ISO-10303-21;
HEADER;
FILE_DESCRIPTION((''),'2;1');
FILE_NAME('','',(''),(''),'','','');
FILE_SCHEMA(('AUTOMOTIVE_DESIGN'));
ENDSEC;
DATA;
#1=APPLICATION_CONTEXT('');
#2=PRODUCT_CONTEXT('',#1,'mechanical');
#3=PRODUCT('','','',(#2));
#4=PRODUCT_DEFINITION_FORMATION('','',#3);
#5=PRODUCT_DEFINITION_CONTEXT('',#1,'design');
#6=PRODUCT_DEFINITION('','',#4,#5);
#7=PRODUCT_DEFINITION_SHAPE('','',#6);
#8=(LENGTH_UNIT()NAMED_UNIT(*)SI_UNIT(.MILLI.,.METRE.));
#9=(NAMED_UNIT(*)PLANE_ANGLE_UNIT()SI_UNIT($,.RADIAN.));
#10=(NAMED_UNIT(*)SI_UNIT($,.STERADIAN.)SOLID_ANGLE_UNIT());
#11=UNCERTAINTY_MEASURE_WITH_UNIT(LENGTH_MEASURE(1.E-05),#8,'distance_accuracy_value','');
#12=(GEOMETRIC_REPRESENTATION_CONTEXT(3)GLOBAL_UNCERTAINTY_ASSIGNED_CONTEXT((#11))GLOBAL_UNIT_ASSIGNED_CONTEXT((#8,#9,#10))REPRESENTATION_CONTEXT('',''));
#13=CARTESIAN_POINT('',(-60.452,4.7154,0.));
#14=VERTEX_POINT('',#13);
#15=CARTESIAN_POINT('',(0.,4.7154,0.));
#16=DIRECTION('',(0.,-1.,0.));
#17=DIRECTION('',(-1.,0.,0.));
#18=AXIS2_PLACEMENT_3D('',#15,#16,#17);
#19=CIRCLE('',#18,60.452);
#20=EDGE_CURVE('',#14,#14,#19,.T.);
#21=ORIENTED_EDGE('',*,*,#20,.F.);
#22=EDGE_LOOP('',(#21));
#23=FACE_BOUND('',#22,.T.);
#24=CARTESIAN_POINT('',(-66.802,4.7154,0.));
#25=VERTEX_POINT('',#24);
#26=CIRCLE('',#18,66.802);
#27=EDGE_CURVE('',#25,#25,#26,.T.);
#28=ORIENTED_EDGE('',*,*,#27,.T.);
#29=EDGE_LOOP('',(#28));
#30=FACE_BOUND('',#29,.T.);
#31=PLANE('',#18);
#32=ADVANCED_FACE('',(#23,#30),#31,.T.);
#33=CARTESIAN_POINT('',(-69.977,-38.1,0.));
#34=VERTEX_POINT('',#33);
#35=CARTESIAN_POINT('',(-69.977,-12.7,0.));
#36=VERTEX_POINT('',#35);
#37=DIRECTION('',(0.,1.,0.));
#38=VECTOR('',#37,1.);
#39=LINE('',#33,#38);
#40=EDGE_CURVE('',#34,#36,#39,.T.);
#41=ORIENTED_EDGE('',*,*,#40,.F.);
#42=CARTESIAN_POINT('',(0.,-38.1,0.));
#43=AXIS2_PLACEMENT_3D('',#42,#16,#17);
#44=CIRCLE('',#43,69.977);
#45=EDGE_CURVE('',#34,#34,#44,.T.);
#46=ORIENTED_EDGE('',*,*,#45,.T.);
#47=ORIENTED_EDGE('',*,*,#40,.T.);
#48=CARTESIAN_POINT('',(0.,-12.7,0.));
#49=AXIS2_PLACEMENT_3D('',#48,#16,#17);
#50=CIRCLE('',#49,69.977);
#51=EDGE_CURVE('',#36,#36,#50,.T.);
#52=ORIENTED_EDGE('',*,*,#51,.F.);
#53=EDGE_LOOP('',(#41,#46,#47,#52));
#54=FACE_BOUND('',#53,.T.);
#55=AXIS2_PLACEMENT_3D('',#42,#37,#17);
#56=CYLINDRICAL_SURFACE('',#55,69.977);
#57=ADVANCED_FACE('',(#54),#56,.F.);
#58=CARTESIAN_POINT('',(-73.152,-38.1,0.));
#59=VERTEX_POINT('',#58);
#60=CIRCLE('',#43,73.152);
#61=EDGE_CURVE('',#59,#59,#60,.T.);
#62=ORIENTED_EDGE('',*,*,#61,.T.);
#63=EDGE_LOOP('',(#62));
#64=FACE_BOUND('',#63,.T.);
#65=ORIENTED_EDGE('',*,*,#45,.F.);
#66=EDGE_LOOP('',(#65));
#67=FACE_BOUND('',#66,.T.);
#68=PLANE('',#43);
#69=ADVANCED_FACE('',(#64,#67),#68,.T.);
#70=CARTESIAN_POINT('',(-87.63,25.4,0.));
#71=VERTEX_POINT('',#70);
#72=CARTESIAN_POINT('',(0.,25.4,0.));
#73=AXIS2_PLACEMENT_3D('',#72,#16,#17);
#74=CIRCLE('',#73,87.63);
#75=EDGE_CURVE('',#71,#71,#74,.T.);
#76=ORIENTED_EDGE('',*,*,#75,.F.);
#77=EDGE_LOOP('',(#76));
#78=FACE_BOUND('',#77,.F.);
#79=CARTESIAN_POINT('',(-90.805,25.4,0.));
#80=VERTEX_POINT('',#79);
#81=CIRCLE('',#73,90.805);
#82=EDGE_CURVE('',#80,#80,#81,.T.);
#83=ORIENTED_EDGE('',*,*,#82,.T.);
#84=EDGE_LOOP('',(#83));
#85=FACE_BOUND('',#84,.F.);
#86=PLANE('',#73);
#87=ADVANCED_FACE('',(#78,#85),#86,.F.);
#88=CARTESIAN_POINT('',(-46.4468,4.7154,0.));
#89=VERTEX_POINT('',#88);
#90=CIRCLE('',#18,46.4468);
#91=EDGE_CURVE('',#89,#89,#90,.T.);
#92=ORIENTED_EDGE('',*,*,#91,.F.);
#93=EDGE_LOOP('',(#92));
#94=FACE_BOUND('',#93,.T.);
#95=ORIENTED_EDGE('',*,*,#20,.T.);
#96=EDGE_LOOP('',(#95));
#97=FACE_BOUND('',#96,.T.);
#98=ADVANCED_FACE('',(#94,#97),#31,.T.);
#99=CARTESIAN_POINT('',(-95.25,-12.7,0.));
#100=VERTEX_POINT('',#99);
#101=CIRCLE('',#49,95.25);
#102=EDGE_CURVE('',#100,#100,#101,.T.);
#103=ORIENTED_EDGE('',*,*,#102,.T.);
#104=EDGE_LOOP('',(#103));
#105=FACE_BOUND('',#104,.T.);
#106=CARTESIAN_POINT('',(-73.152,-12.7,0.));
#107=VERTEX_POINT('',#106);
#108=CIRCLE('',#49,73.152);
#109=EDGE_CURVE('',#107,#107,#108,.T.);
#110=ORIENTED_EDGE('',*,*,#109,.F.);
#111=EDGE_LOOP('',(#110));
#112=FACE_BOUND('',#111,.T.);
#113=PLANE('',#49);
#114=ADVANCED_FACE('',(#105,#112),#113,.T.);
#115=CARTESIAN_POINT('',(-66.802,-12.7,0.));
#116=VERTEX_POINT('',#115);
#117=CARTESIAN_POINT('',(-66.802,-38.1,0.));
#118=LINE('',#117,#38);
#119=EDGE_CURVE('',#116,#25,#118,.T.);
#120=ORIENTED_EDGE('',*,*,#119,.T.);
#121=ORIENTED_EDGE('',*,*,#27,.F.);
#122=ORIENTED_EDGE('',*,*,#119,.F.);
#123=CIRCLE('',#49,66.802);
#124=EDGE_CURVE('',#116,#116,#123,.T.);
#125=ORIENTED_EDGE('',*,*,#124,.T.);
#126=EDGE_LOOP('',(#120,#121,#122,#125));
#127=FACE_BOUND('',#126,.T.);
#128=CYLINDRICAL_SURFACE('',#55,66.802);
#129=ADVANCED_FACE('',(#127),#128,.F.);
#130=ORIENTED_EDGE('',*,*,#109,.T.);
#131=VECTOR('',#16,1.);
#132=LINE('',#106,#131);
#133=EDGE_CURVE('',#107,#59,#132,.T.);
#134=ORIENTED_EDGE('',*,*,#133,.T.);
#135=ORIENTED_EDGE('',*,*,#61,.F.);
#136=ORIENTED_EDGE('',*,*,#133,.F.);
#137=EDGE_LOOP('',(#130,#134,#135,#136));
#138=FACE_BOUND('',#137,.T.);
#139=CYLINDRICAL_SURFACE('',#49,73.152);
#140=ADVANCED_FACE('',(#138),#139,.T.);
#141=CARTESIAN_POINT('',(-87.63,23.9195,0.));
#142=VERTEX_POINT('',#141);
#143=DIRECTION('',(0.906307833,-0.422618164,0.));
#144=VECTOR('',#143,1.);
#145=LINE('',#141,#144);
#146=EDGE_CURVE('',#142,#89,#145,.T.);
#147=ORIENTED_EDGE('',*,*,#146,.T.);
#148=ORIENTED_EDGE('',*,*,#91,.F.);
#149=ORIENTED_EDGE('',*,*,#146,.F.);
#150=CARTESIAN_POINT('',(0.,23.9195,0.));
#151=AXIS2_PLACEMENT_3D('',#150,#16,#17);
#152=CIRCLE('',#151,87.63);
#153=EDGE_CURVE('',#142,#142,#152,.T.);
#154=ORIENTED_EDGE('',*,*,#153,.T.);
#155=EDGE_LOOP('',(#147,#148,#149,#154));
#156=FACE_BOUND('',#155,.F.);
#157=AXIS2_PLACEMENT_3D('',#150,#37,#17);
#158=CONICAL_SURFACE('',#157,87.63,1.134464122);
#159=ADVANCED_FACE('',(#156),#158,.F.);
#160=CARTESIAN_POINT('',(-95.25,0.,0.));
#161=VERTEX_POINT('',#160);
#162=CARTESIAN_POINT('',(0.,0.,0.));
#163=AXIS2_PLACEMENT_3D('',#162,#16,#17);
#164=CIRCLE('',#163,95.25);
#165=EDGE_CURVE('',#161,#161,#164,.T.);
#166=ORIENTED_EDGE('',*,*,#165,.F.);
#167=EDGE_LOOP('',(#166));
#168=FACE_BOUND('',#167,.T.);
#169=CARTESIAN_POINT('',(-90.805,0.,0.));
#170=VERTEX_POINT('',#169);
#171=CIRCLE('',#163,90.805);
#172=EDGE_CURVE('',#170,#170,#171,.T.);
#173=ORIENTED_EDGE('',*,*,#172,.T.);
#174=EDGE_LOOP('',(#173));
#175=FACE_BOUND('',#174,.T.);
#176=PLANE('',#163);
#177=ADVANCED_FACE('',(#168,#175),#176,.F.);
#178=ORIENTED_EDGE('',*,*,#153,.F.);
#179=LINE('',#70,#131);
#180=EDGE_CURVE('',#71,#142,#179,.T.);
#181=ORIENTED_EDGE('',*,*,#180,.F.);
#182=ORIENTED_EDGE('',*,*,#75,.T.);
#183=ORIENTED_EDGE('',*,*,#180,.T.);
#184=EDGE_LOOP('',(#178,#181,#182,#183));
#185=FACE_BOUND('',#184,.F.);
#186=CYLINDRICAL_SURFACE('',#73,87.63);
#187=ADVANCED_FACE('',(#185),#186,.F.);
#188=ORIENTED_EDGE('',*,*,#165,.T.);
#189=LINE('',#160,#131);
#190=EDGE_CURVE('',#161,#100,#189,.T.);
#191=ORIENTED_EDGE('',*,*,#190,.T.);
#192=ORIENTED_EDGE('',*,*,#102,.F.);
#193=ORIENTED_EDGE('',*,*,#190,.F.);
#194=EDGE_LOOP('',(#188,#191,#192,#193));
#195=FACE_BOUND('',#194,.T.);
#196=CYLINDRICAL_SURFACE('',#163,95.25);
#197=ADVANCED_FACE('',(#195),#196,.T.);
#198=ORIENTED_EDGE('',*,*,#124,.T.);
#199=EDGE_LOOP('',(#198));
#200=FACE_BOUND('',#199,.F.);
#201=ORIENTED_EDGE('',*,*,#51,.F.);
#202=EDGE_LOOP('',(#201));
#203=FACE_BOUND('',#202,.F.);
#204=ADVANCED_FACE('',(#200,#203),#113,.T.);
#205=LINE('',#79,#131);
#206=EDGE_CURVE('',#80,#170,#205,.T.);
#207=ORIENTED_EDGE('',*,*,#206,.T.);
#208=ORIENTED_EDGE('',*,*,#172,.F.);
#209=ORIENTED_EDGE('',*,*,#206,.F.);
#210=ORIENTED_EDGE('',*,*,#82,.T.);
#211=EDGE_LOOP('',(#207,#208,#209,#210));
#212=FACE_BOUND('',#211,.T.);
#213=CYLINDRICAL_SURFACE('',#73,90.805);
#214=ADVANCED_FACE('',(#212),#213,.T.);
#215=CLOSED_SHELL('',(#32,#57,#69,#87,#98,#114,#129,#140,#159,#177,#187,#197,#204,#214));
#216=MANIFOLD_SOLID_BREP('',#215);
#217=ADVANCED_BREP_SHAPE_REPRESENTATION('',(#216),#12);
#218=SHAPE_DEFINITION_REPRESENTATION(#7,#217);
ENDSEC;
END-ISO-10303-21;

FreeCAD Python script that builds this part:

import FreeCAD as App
import Part
import Sketcher
from FreeCAD import Vector
Q = App.Units.Quantity


def add_polygon(sketch, points):
    """Adds a closed chain of lines whose ends are joined by coincident constraints."""
    first, n = sketch.GeometryCount, len(points)
    for a, b in zip(points, points[1:] + points[:1]):
        sketch.addGeometry(Part.LineSegment(App.Vector(*a, 0), App.Vector(*b, 0)), False)
    for i in range(n):
        sketch.addConstraint(Sketcher.Constraint("Coincident", first + i, 2, first + (i + 1) % n, 1))

doc = App.newDocument("Part")
body = doc.addObject("PartDesign::Body", "Body")

sketch1 = body.newObject("Sketcher::SketchObject", "Sketch")
sketch1.AttachmentSupport = (doc.getObject("XY_Plane"), [""])
sketch1.MapMode = "FlatFace"
add_polygon(sketch1, [(-90.8, 25.4), (-90.8, 0), (-95.2, 0), (-95.2, -12.7), (-73.2, -12.7), (-73.2, -38.1), (-70, -38.1), (-70, -12.7), (-66.8, -12.7), (-66.8, 4.7), (-46.4, 4.7), (-87.6, 23.9), (-87.6, 25.4)])
sketch1.addConstraint(Sketcher.Constraint("Vertical", 0))
sketch1.addConstraint(Sketcher.Constraint("Horizontal", 1))
sketch1.addConstraint(Sketcher.Constraint("Vertical", 2))
sketch1.addConstraint(Sketcher.Constraint("Horizontal", 3))
sketch1.addConstraint(Sketcher.Constraint("Vertical", 4))
sketch1.addConstraint(Sketcher.Constraint("Horizontal", 5))
sketch1.addConstraint(Sketcher.Constraint("Vertical", 6))
sketch1.addConstraint(Sketcher.Constraint("Horizontal", 7))
sketch1.addConstraint(Sketcher.Constraint("Vertical", 8))
sketch1.addConstraint(Sketcher.Constraint("Horizontal", 9))
sketch1.addConstraint(Sketcher.Constraint("Vertical", 11))
sketch1.addConstraint(Sketcher.Constraint("Horizontal", 12))
sketch1.addConstraint(Sketcher.Constraint("PointOnObject", 0, 2, -1))
sketch1.addConstraint(Sketcher.Constraint("Horizontal", 3, 2, 6, 2))
sketch1.addConstraint(Sketcher.Constraint("Equal", 5, 7))
sketch1.addConstraint(Sketcher.Constraint("Equal", 7, 12))
sketch1.addConstraint(Sketcher.Constraint("Equal", 0, 4))
sketch1.addConstraint(Sketcher.Constraint("DistanceY", 0, 2, 0, 1, Q("1 in")))
sketch1.addConstraint(Sketcher.Constraint("DistanceY", 2, 2, 2, 1, Q("0.5 in")))
sketch1.addConstraint(Sketcher.Constraint("DistanceX", 1, 2, 1, 1, Q("0.175 in")))
sketch1.addConstraint(Sketcher.Constraint("DistanceX", 5, 1, 5, 2, Q("0.125 in")))
sketch1.addConstraint(Sketcher.Constraint("DistanceX", 1, 2, -1, 1, Q("3.75 in")))
sketch1.addConstraint(Sketcher.Constraint("Angle", 10, Q("155 deg")))
sketch1.addConstraint(Sketcher.Constraint("DistanceX", 3, 1, 3, 2, Q("0.87 in")))
sketch1.addConstraint(Sketcher.Constraint("DistanceX", 9, 1, 9, 2, Q("20.3552 mm")))
sketch1.addConstraint(Sketcher.Constraint("DistanceY", 11, 1, 11, 2, Q("1.4805 mm")))
revolution = body.newObject("PartDesign::Revolution", "Revolution")
revolution.Profile = sketch1
revolution.ReferenceAxis = (sketch1, ["V_Axis"])
revolution.Angle = 360

doc.recompute()
